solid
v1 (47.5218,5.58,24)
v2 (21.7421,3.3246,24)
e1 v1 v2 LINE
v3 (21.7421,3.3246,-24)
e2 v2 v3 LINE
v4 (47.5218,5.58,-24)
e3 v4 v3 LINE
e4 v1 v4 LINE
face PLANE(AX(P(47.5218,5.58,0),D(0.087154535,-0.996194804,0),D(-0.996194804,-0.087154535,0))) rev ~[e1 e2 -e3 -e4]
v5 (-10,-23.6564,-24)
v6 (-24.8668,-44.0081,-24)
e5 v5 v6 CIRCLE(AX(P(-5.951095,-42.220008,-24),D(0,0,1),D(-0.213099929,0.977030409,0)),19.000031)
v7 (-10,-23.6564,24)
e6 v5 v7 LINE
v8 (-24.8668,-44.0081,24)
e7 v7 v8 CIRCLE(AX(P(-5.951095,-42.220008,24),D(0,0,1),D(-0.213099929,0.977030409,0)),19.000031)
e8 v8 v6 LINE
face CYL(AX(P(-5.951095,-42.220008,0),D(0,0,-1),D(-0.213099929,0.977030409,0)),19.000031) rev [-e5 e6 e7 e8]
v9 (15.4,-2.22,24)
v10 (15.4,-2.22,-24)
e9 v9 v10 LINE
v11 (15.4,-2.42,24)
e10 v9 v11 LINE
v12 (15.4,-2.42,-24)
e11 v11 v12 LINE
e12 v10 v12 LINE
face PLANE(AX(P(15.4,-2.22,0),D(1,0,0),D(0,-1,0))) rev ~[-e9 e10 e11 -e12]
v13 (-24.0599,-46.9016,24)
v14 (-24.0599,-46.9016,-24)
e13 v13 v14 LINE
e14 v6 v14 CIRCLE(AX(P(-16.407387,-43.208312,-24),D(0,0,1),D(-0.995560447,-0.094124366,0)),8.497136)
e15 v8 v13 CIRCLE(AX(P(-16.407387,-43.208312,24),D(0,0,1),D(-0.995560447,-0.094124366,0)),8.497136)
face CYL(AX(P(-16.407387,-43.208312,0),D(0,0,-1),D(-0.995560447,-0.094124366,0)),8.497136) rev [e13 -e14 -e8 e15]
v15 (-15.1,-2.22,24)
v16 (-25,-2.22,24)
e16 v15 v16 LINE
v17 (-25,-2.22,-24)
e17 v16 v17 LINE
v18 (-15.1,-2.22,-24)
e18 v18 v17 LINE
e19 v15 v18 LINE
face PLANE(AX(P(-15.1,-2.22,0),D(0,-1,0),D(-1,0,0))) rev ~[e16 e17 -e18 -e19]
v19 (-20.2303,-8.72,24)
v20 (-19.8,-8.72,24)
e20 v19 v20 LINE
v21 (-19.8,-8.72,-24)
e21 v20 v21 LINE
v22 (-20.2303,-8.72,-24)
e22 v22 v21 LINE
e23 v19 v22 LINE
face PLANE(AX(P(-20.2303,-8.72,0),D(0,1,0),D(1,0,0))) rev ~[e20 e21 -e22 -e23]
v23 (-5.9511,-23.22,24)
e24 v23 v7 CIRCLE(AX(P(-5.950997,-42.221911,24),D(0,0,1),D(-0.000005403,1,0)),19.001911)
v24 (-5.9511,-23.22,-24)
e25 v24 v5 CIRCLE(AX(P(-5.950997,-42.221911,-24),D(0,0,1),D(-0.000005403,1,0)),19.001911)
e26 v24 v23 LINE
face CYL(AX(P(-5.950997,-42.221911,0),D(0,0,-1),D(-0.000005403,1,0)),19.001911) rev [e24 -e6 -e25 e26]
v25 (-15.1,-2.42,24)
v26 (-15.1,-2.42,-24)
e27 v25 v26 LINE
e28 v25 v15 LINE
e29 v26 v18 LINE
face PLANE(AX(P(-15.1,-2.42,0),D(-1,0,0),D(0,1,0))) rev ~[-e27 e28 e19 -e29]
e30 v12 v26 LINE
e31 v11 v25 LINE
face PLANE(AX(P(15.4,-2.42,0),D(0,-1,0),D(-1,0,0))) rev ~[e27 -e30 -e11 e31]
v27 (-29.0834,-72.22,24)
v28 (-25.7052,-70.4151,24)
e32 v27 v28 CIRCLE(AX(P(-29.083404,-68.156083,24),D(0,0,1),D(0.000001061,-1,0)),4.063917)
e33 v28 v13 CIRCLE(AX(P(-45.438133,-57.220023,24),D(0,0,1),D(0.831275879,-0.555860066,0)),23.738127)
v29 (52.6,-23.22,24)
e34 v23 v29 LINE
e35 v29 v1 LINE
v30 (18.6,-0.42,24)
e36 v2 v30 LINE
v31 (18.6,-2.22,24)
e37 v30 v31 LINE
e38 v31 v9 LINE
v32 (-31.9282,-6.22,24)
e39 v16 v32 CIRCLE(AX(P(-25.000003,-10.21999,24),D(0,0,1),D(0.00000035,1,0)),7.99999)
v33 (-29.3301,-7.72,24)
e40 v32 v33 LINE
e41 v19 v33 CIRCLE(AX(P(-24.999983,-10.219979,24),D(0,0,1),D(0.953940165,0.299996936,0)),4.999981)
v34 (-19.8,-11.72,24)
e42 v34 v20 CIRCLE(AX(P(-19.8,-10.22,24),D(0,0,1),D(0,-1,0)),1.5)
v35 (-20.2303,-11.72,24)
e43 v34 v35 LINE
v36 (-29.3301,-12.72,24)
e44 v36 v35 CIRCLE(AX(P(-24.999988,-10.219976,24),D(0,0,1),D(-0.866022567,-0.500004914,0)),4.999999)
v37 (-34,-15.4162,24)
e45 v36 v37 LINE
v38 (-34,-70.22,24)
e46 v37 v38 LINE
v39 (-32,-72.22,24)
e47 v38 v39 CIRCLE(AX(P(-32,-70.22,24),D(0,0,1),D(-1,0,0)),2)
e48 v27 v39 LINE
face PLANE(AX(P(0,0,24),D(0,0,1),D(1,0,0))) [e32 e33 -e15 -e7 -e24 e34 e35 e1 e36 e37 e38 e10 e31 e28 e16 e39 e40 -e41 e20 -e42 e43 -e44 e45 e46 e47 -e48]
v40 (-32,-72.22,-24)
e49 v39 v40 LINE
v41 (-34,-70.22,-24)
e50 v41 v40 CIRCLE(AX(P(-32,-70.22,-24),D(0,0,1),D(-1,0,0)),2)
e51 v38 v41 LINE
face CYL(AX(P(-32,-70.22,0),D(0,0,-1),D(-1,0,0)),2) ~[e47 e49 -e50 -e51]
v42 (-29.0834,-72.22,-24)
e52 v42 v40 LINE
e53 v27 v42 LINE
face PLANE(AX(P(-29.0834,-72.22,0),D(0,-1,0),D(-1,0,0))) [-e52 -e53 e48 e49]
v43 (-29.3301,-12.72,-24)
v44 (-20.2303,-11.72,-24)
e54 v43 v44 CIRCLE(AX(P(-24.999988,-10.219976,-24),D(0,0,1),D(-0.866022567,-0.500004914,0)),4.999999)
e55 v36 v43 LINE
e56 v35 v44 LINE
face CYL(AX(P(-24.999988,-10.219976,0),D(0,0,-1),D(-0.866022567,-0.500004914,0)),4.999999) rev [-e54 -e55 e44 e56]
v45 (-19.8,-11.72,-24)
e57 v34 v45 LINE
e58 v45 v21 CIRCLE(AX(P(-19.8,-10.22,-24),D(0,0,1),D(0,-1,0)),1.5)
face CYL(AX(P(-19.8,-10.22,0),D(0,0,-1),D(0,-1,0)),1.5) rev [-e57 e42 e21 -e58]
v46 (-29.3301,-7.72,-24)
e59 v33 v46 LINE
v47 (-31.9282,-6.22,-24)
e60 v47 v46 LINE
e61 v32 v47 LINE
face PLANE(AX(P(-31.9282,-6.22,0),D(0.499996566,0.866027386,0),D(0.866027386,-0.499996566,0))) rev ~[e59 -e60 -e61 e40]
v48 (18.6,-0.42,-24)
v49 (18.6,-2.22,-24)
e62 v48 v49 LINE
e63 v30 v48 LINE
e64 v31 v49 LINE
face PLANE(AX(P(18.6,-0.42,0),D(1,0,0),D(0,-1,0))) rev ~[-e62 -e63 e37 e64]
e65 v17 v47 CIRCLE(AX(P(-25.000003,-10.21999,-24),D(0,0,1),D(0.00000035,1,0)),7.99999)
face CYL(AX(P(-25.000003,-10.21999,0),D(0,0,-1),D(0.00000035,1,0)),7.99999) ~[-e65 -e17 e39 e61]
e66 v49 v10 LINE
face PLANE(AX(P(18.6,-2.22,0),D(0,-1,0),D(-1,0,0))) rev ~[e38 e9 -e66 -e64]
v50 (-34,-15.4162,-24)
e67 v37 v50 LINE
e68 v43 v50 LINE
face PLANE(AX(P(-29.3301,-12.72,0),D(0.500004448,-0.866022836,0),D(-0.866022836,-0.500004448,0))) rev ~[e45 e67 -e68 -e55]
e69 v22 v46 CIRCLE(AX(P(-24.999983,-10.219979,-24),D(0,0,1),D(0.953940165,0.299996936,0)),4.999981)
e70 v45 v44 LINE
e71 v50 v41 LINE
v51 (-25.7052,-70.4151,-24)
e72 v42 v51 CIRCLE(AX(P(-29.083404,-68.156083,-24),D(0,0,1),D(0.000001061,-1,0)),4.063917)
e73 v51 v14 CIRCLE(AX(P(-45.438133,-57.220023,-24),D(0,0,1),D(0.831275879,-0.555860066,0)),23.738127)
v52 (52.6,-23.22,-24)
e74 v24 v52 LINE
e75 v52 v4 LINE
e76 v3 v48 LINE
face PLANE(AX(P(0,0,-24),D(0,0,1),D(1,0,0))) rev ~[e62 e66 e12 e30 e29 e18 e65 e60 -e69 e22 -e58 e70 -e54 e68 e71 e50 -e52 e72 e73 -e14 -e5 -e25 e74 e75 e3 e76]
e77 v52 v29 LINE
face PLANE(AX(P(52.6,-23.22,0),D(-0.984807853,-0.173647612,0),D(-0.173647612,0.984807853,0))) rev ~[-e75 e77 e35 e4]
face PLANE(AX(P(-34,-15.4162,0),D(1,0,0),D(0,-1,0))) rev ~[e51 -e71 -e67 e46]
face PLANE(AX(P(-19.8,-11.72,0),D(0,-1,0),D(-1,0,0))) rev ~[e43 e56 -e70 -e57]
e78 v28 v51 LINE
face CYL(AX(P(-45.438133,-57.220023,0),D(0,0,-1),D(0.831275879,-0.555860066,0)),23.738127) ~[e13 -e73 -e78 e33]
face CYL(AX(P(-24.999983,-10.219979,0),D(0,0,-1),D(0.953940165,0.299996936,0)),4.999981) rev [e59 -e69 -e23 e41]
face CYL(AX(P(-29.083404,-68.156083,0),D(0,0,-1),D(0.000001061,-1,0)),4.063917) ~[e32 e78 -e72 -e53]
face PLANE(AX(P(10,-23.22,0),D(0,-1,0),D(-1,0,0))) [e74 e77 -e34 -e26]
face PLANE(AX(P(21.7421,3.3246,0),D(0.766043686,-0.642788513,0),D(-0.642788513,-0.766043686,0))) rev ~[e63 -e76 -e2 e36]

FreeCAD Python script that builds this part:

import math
import FreeCAD as App
import Part
import Sketcher

doc = App.newDocument("Part")
params = doc.addObject("Spreadsheet::Sheet", "Params")
for row, (alias, value) in enumerate([
    ("sketch1_radius", "19 mm"),
    ("sketch1_radius2", "8 mm"),
    ("sketch1_radius3", "5 mm"),
    ("sketch1_radius4", "5 mm"),
    ("sketch1_radius5", "2 mm"),
    ("pad1_length", "48 mm"),
], start=1):
    params.set(f"A{row}", alias)
    params.set(f"B{row}", "=" + value)
    params.setAlias(f"B{row}", alias)

body = doc.addObject("PartDesign::Body", "Body")

# Sketch on XY plane
sketch1 = body.newObject("Sketcher::SketchObject", "Sketch")
sketch1.AttachmentSupport = (doc.getObject("XY_Plane"), [""])
sketch1.MapMode = "FlatFace"
sketch1.addGeometry([
    Part.ArcOfCircle(Part.Circle(App.Vector(-5.9511, -42.22, 0), App.Vector(0, 0, 1), 19.000022), math.radians(102.304068), math.radians(185.40012)),  # 0
    Part.ArcOfCircle(Part.Circle(App.Vector(-5.950997, -42.221911, 0), App.Vector(0, 0, 1), 19.001911), math.radians(90.00031), math.radians(102.303143)),  # 1
    Part.LineSegment(App.Vector(-5.9511, -23.22, 0), App.Vector(52.6, -23.22, 0)),  # 2
    Part.LineSegment(App.Vector(52.6, -23.22, 0), App.Vector(47.5218, 5.58, 0)),  # 3
    Part.LineSegment(App.Vector(47.5218, 5.58, 0), App.Vector(21.7421, 3.3246, 0)),  # 4
    Part.LineSegment(App.Vector(21.7421, 3.3246, 0), App.Vector(18.6, -0.42, 0)),  # 5
    Part.LineSegment(App.Vector(18.6, -0.42, 0), App.Vector(18.6, -2.22, 0)),  # 6
    Part.LineSegment(App.Vector(18.6, -2.22, 0), App.Vector(15.4, -2.22, 0)),  # 7
    Part.LineSegment(App.Vector(15.4, -2.22, 0), App.Vector(15.4, -2.42, 0)),  # 8
    Part.LineSegment(App.Vector(15.4, -2.42, 0), App.Vector(-15.1, -2.42, 0)),  # 9
    Part.LineSegment(App.Vector(-15.1, -2.42, 0), App.Vector(-15.1, -2.22, 0)),  # 10
    Part.LineSegment(App.Vector(-15.1, -2.22, 0), App.Vector(-25, -2.22, 0)),  # 11
    Part.ArcOfCircle(Part.Circle(App.Vector(-25, -10.22, 0), App.Vector(0, 0, 1), 8), math.radians(90), math.radians(149.999988)),  # 12
    Part.LineSegment(App.Vector(-31.9282, -6.22, 0), App.Vector(-29.3301, -7.72, 0)),  # 13
    Part.ArcOfCircle(Part.Circle(App.Vector(-25, -10.22, 0), App.Vector(0, 0, 1), 4.999977), math.radians(17.457589), math.radians(149.999845)),  # 14
    Part.LineSegment(App.Vector(-20.2303, -8.72, 0), App.Vector(-19.8, -8.72, 0)),  # 15
    Part.ArcOfCircle(Part.Circle(App.Vector(-19.8, -10.22, 0), App.Vector(0, 0, 1), 1.5), math.radians(-90), math.radians(90)),  # 16
    Part.LineSegment(App.Vector(-19.8, -11.72, 0), App.Vector(-20.2303, -11.72, 0)),  # 17
    Part.ArcOfCircle(Part.Circle(App.Vector(-25, -10.22, 0), App.Vector(0, 0, 1), 5.000004), math.radians(-149.999845), math.radians(-17.457589)),  # 18
    Part.LineSegment(App.Vector(-29.3301, -12.72, 0), App.Vector(-34, -15.4162, 0)),  # 19
    Part.LineSegment(App.Vector(-34, -15.4162, 0), App.Vector(-34, -70.22, 0)),  # 20
    Part.ArcOfCircle(Part.Circle(App.Vector(-32, -70.22, 0), App.Vector(0, 0, 1), 2), math.radians(180), math.radians(270)),  # 21
    Part.LineSegment(App.Vector(-32, -72.22, 0), App.Vector(-29.0834, -72.22, 0)),  # 22
    Part.ArcOfCircle(Part.Circle(App.Vector(-29.0834, -68.1561, 0), App.Vector(0, 0, 1), 4.0639), math.radians(-90), math.radians(-33.770619)),  # 23
    Part.ArcOfCircle(Part.Circle(App.Vector(-45.4382, -57.22, 0), App.Vector(0, 0, 1), 23.738196), math.radians(-33.76993), math.radians(25.764636)),  # 24
    Part.ArcOfCircle(Part.Circle(App.Vector(-16.407387, -43.208312, 0), App.Vector(0, 0, 1), 8.497136), math.radians(-174.599076), math.radians(-154.236921)),  # 25
], False)
sketch1.addConstraint([
    Sketcher.Constraint("Coincident", 0, 1, 1, 2),
    Sketcher.Constraint("Coincident", 1, 1, 2, 1),
    Sketcher.Constraint("Coincident", 2, 2, 3, 1),
    Sketcher.Constraint("Coincident", 3, 2, 4, 1),
    Sketcher.Constraint("Coincident", 4, 2, 5, 1),
    Sketcher.Constraint("Coincident", 5, 2, 6, 1),
    Sketcher.Constraint("Coincident", 6, 2, 7, 1),
    Sketcher.Constraint("Coincident", 7, 2, 8, 1),
    Sketcher.Constraint("Coincident", 8, 2, 9, 1),
    Sketcher.Constraint("Coincident", 9, 2, 10, 1),
    Sketcher.Constraint("Coincident", 10, 2, 11, 1),
    Sketcher.Constraint("Coincident", 11, 2, 12, 1),
    Sketcher.Constraint("Coincident", 12, 2, 13, 1),
    Sketcher.Constraint("Coincident", 13, 2, 14, 2),
    Sketcher.Constraint("Coincident", 14, 1, 15, 1),
    Sketcher.Constraint("Coincident", 15, 2, 16, 2),
    Sketcher.Constraint("Coincident", 16, 1, 17, 1),
    Sketcher.Constraint("Coincident", 17, 2, 18, 2),
    Sketcher.Constraint("Coincident", 18, 1, 19, 1),
    Sketcher.Constraint("Coincident", 19, 2, 20, 1),
    Sketcher.Constraint("Coincident", 20, 2, 21, 1),
    Sketcher.Constraint("Coincident", 21, 2, 22, 1),
    Sketcher.Constraint("Coincident", 22, 2, 23, 1),
    Sketcher.Constraint("Coincident", 23, 2, 24, 1),
    Sketcher.Constraint("Coincident", 24, 2, 25, 2),
    Sketcher.Constraint("Coincident", 25, 1, 0, 2),
    Sketcher.Constraint("Horizontal", 2),
    Sketcher.Constraint("Vertical", 6),
    Sketcher.Constraint("Horizontal", 7),
    Sketcher.Constraint("Vertical", 8),
    Sketcher.Constraint("Horizontal", 9),
    Sketcher.Constraint("Vertical", 10),
    Sketcher.Constraint("Horizontal", 11),
    Sketcher.Constraint("Horizontal", 15),
    Sketcher.Constraint("Horizontal", 17),
    Sketcher.Constraint("Vertical", 20),
    Sketcher.Constraint("Horizontal", 22),
    Sketcher.Constraint("Coincident", 14, 3, 12, 3),
    Sketcher.Constraint("Coincident", 18, 3, 12, 3),
    Sketcher.Constraint("Radius", 0, 19.0),
    Sketcher.Constraint("Radius", 12, 8.0),
    Sketcher.Constraint("Radius", 14, 5.0),
    Sketcher.Constraint("Radius", 18, 5.0),
    Sketcher.Constraint("Radius", 21, 2.0),
    Sketcher.Constraint("Radius", 16, 1.5),
    Sketcher.Constraint("DistanceX", 7, 2, 7, 1, 3.2),
    Sketcher.Constraint("DistanceX", 9, 2, 9, 1, 30.5),
    Sketcher.Constraint("DistanceX", 11, 2, 11, 1, 9.9),
    Sketcher.Constraint("DistanceY", 6, 2, 6, 1, 1.8),
    Sketcher.Constraint("DistanceY", 8, 2, 8, 1, 0.2),
    Sketcher.Constraint("DistanceY", 10, 1, 10, 2, 0.2),
    Sketcher.Constraint("DistanceX", 12, 3, -1, 1, 25.0),
    Sketcher.Constraint("DistanceX", 21, 3, -1, 1, 32.0),
    Sketcher.Constraint("DistanceX", 0, 1, -1, 1, 10.0),
    Sketcher.Constraint("DistanceX", 11, 2, -1, 1, 25.0),
    Sketcher.Constraint("DistanceX", 21, 2, -1, 1, 32.0),
    Sketcher.Constraint("Radius", 1, 19.002),
    Sketcher.Constraint("Radius", 23, 4.064),
    Sketcher.Constraint("DistanceX", 0, 3, 1, 3, 0.0),
    Sketcher.Constraint("DistanceY", 0, 3, 12, 3, 32.0),
    Sketcher.Constraint("DistanceY", 0, 3, 16, 3, 32.0),
    Sketcher.Constraint("DistanceY", 21, 3, 0, 3, 28.0),
    Sketcher.Constraint("DistanceY", 21, 3, 24, 3, 13.0),
    Sketcher.Constraint("DistanceX", 1, 1, 1, 3, 0.0),
    Sketcher.Constraint("DistanceY", 5, 2, 3, 2, 6.0),
    Sketcher.Constraint("DistanceY", 12, 2, 11, 2, 4.0),
    Sketcher.Constraint("DistanceY", 18, 1, 13, 2, 5.0),
    Sketcher.Constraint("DistanceY", 20, 2, 24, 3, 13.0),
    Sketcher.Constraint("DistanceX", 16, 3, -1, 1, 19.8),
    Sketcher.Constraint("DistanceX", -1, 1, 2, 2, 52.6),
    Sketcher.Constraint("DistanceX", 15, 2, -1, 1, 19.8),
    Sketcher.Constraint("DistanceX", 16, 1, -1, 1, 19.8),
    Sketcher.Constraint("Radius", 24, 23.7382),
    Sketcher.Constraint("Radius", 25, 8.4971),
    Sketcher.Constraint("DistanceY", 13, 2, 12, 2, 1.5),
    Sketcher.Constraint("DistanceX", 2, 1, 2, 2, 58.551),
    Sketcher.Constraint("DistanceY", 0, 3, -1, 1, 42.22),
    Sketcher.Constraint("DistanceX", 24, 2, -1, 1, 24.06),
    Sketcher.Constraint("DistanceX", 22, 1, 22, 2, 2.9166),
    Sketcher.Constraint("DistanceY", 20, 2, 20, 1, 54.8038),
    Sketcher.Constraint("DistanceX", -1, 1, 4, 2, 21.742),
    Sketcher.Constraint("DistanceY", 23, 2, -1, 1, 70.415),
    Sketcher.Constraint("DistanceY", 25, 1, -1, 1, 44.008),
    Sketcher.Constraint("DistanceX", 24, 3, 0, 3, 39.487),
    Sketcher.Constraint("DistanceX", 1, 1, 3, 2, 53.473),
    Sketcher.Constraint("DistanceY", 0, 1, 4, 2, 26.981),
])
sketch1.setExpression("Constraints[39]", "Params.sketch1_radius")
sketch1.setExpression("Constraints[40]", "Params.sketch1_radius2")
sketch1.setExpression("Constraints[41]", "Params.sketch1_radius3")
sketch1.setExpression("Constraints[42]", "Params.sketch1_radius4")
sketch1.setExpression("Constraints[43]", "Params.sketch1_radius5")
pad1 = body.newObject("PartDesign::Pad", "Pad")
pad1.Profile = sketch1
pad1.setExpression("Length", "Params.pad1_length")
pad1.Midplane = True

doc.recompute()
